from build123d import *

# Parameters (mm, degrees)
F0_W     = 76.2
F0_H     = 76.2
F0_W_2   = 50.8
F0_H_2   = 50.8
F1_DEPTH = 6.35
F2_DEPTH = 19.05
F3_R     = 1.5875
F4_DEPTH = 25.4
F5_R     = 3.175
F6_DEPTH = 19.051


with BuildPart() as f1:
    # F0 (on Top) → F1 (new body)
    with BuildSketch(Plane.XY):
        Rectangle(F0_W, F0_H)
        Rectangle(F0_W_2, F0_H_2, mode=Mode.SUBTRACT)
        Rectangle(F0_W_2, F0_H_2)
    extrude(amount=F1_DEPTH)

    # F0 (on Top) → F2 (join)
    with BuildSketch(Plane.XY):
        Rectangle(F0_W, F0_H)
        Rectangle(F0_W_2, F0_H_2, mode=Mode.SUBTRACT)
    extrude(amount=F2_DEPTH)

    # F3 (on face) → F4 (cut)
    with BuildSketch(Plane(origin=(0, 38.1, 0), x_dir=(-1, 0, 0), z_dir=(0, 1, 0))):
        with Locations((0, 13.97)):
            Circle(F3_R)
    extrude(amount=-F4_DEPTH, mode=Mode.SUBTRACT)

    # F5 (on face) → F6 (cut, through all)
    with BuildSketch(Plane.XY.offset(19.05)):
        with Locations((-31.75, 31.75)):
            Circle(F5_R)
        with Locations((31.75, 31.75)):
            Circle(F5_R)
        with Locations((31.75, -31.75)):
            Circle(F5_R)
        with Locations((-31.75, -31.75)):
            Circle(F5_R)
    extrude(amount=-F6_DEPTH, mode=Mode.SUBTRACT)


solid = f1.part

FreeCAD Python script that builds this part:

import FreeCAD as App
import Part
import Sketcher
from FreeCAD import Vector
Q = App.Units.Quantity


def add_polygon(sketch, points):
    """Adds a closed chain of lines whose ends are joined by coincident constraints."""
    first, n = sketch.GeometryCount, len(points)
    for a, b in zip(points, points[1:] + points[:1]):
        sketch.addGeometry(Part.LineSegment(App.Vector(*a, 0), App.Vector(*b, 0)), False)
    for i in range(n):
        sketch.addConstraint(Sketcher.Constraint("Coincident", first + i, 2, first + (i + 1) % n, 1))

doc = App.newDocument("Part")
body = doc.addObject("PartDesign::Body", "Body")

# Sketch on XY plane
sketch1 = body.newObject("Sketcher::SketchObject", "Sketch")
sketch1.AttachmentSupport = (doc.getObject("XY_Plane"), [""])
sketch1.MapMode = "FlatFace"
add_polygon(sketch1, [(-38.1, 38.1), (-38.1, -38.1), (38.1, -38.1), (38.1, 38.1)])  # lines 0-3
sketch1.addConstraint(Sketcher.Constraint("Vertical", 0))
sketch1.addConstraint(Sketcher.Constraint("Horizontal", 1))
sketch1.addConstraint(Sketcher.Constraint("Vertical", 2))
sketch1.addConstraint(Sketcher.Constraint("Horizontal", 3))
sketch1.addConstraint(Sketcher.Constraint("Symmetric", 0, 2, 2, 2, -1, 1))
sketch1.addConstraint(Sketcher.Constraint("Equal", 3, 0))
sketch1.addConstraint(Sketcher.Constraint("DistanceX", 1, 1, 1, 2, Q("3 in")))
pad1 = body.newObject("PartDesign::Pad", "Pad")
pad1.Profile = sketch1
pad1.Length = Q("0.25 in")

# Sketch on XY plane
sketch2 = body.newObject("Sketcher::SketchObject", "Sketch001")
sketch2.AttachmentSupport = (doc.getObject("XY_Plane"), [""])
sketch2.MapMode = "FlatFace"
add_polygon(sketch2, [(-38.1, 38.1), (-38.1, -38.1), (38.1, -38.1), (38.1, 38.1)])  # lines 0-3
add_polygon(sketch2, [(25.4, -25.4), (-25.4, -25.4), (-25.4, 25.4), (25.4, 25.4)])  # lines 4-7
sketch2.addConstraint(Sketcher.Constraint("Vertical", 0))
sketch2.addConstraint(Sketcher.Constraint("Horizontal", 1))
sketch2.addConstraint(Sketcher.Constraint("Vertical", 2))
sketch2.addConstraint(Sketcher.Constraint("Horizontal", 3))
sketch2.addConstraint(Sketcher.Constraint("Horizontal", 4))
sketch2.addConstraint(Sketcher.Constraint("Vertical", 5))
sketch2.addConstraint(Sketcher.Constraint("Horizontal", 6))
sketch2.addConstraint(Sketcher.Constraint("Vertical", 7))
sketch2.addConstraint(Sketcher.Constraint("Symmetric", 0, 2, 2, 2, -1, 1))
sketch2.addConstraint(Sketcher.Constraint("Symmetric", 4, 2, 6, 2, -1, 1))
sketch2.addConstraint(Sketcher.Constraint("Equal", 3, 0))
sketch2.addConstraint(Sketcher.Constraint("Equal", 6, 5))
sketch2.addConstraint(Sketcher.Constraint("DistanceX", 1, 1, 1, 2, Q("3 in")))
sketch2.addConstraint(Sketcher.Constraint("DistanceX", 4, 2, 4, 1, Q("2 in")))
pad2 = body.newObject("PartDesign::Pad", "Pad001")
pad2.Profile = sketch2
pad2.Length = Q("0.75 in")

# Sketch on XZ plane
sketch3 = body.newObject("Sketcher::SketchObject", "Sketch002")
sketch3.AttachmentSupport = (doc.getObject("XZ_Plane"), [""])
sketch3.MapMode = "FlatFace"
sketch3.AttachmentOffset = App.Placement(Vector(0, 0, -1.5 * 25.4), App.Rotation())
sketch3.addGeometry(Part.Circle(Vector(0, 13.97, 0), Vector(0, 0, 1), 1.5875), False)
sketch3.addConstraint(Sketcher.Constraint("PointOnObject", 0, 3, -2))
sketch3.addConstraint(Sketcher.Constraint("Diameter", 0, Q("0.125 in")))
sketch3.addConstraint(Sketcher.Constraint("DistanceY", -1, 1, 0, 3, Q("0.55 in")))
pocket1 = body.newObject("PartDesign::Pocket", "Pocket")
pocket1.Profile = sketch3
pocket1.Length = Q("1 in")
pocket1.Reversed = True

# Sketch on XY plane
sketch4 = body.newObject("Sketcher::SketchObject", "Sketch003")
sketch4.AttachmentSupport = (doc.getObject("XY_Plane"), [""])
sketch4.MapMode = "FlatFace"
sketch4.AttachmentOffset = App.Placement(Vector(0, 0, 0.75 * 25.4), App.Rotation())
sketch4.addGeometry(Part.Circle(Vector(-31.75, 31.75, 0), Vector(0, 0, 1), 3.175), False)
sketch4.addGeometry(Part.Circle(Vector(31.75, 31.75, 0), Vector(0, 0, 1), 3.175), False)
sketch4.addGeometry(Part.Circle(Vector(31.75, -31.75, 0), Vector(0, 0, 1), 3.175), False)
sketch4.addGeometry(Part.Circle(Vector(-31.75, -31.75, 0), Vector(0, 0, 1), 3.175), False)
sketch4.addConstraint(Sketcher.Constraint("Equal", 0, 1))
sketch4.addConstraint(Sketcher.Constraint("Equal", 1, 2))
sketch4.addConstraint(Sketcher.Constraint("Equal", 2, 3))
sketch4.addConstraint(Sketcher.Constraint("Symmetric", 0, 3, 2, 3, -1, 1))
sketch4.addConstraint(Sketcher.Constraint("Symmetric", 1, 3, 3, 3, -1, 1))
sketch4.addConstraint(Sketcher.Constraint("Symmetric", 0, 3, 1, 3, -2))
sketch4.addConstraint(Sketcher.Constraint("Diameter", 0, Q("0.25 in")))
sketch4.addConstraint(Sketcher.Constraint("DistanceX", 0, 3, 1, 3, Q("2.5 in")))
sketch4.addConstraint(Sketcher.Constraint("DistanceY", 2, 3, 1, 3, Q("2.5 in")))
pocket2 = body.newObject("PartDesign::Pocket", "Pocket001")
pocket2.Profile = sketch4
pocket2.Type = "ThroughAll"

doc.recompute()
